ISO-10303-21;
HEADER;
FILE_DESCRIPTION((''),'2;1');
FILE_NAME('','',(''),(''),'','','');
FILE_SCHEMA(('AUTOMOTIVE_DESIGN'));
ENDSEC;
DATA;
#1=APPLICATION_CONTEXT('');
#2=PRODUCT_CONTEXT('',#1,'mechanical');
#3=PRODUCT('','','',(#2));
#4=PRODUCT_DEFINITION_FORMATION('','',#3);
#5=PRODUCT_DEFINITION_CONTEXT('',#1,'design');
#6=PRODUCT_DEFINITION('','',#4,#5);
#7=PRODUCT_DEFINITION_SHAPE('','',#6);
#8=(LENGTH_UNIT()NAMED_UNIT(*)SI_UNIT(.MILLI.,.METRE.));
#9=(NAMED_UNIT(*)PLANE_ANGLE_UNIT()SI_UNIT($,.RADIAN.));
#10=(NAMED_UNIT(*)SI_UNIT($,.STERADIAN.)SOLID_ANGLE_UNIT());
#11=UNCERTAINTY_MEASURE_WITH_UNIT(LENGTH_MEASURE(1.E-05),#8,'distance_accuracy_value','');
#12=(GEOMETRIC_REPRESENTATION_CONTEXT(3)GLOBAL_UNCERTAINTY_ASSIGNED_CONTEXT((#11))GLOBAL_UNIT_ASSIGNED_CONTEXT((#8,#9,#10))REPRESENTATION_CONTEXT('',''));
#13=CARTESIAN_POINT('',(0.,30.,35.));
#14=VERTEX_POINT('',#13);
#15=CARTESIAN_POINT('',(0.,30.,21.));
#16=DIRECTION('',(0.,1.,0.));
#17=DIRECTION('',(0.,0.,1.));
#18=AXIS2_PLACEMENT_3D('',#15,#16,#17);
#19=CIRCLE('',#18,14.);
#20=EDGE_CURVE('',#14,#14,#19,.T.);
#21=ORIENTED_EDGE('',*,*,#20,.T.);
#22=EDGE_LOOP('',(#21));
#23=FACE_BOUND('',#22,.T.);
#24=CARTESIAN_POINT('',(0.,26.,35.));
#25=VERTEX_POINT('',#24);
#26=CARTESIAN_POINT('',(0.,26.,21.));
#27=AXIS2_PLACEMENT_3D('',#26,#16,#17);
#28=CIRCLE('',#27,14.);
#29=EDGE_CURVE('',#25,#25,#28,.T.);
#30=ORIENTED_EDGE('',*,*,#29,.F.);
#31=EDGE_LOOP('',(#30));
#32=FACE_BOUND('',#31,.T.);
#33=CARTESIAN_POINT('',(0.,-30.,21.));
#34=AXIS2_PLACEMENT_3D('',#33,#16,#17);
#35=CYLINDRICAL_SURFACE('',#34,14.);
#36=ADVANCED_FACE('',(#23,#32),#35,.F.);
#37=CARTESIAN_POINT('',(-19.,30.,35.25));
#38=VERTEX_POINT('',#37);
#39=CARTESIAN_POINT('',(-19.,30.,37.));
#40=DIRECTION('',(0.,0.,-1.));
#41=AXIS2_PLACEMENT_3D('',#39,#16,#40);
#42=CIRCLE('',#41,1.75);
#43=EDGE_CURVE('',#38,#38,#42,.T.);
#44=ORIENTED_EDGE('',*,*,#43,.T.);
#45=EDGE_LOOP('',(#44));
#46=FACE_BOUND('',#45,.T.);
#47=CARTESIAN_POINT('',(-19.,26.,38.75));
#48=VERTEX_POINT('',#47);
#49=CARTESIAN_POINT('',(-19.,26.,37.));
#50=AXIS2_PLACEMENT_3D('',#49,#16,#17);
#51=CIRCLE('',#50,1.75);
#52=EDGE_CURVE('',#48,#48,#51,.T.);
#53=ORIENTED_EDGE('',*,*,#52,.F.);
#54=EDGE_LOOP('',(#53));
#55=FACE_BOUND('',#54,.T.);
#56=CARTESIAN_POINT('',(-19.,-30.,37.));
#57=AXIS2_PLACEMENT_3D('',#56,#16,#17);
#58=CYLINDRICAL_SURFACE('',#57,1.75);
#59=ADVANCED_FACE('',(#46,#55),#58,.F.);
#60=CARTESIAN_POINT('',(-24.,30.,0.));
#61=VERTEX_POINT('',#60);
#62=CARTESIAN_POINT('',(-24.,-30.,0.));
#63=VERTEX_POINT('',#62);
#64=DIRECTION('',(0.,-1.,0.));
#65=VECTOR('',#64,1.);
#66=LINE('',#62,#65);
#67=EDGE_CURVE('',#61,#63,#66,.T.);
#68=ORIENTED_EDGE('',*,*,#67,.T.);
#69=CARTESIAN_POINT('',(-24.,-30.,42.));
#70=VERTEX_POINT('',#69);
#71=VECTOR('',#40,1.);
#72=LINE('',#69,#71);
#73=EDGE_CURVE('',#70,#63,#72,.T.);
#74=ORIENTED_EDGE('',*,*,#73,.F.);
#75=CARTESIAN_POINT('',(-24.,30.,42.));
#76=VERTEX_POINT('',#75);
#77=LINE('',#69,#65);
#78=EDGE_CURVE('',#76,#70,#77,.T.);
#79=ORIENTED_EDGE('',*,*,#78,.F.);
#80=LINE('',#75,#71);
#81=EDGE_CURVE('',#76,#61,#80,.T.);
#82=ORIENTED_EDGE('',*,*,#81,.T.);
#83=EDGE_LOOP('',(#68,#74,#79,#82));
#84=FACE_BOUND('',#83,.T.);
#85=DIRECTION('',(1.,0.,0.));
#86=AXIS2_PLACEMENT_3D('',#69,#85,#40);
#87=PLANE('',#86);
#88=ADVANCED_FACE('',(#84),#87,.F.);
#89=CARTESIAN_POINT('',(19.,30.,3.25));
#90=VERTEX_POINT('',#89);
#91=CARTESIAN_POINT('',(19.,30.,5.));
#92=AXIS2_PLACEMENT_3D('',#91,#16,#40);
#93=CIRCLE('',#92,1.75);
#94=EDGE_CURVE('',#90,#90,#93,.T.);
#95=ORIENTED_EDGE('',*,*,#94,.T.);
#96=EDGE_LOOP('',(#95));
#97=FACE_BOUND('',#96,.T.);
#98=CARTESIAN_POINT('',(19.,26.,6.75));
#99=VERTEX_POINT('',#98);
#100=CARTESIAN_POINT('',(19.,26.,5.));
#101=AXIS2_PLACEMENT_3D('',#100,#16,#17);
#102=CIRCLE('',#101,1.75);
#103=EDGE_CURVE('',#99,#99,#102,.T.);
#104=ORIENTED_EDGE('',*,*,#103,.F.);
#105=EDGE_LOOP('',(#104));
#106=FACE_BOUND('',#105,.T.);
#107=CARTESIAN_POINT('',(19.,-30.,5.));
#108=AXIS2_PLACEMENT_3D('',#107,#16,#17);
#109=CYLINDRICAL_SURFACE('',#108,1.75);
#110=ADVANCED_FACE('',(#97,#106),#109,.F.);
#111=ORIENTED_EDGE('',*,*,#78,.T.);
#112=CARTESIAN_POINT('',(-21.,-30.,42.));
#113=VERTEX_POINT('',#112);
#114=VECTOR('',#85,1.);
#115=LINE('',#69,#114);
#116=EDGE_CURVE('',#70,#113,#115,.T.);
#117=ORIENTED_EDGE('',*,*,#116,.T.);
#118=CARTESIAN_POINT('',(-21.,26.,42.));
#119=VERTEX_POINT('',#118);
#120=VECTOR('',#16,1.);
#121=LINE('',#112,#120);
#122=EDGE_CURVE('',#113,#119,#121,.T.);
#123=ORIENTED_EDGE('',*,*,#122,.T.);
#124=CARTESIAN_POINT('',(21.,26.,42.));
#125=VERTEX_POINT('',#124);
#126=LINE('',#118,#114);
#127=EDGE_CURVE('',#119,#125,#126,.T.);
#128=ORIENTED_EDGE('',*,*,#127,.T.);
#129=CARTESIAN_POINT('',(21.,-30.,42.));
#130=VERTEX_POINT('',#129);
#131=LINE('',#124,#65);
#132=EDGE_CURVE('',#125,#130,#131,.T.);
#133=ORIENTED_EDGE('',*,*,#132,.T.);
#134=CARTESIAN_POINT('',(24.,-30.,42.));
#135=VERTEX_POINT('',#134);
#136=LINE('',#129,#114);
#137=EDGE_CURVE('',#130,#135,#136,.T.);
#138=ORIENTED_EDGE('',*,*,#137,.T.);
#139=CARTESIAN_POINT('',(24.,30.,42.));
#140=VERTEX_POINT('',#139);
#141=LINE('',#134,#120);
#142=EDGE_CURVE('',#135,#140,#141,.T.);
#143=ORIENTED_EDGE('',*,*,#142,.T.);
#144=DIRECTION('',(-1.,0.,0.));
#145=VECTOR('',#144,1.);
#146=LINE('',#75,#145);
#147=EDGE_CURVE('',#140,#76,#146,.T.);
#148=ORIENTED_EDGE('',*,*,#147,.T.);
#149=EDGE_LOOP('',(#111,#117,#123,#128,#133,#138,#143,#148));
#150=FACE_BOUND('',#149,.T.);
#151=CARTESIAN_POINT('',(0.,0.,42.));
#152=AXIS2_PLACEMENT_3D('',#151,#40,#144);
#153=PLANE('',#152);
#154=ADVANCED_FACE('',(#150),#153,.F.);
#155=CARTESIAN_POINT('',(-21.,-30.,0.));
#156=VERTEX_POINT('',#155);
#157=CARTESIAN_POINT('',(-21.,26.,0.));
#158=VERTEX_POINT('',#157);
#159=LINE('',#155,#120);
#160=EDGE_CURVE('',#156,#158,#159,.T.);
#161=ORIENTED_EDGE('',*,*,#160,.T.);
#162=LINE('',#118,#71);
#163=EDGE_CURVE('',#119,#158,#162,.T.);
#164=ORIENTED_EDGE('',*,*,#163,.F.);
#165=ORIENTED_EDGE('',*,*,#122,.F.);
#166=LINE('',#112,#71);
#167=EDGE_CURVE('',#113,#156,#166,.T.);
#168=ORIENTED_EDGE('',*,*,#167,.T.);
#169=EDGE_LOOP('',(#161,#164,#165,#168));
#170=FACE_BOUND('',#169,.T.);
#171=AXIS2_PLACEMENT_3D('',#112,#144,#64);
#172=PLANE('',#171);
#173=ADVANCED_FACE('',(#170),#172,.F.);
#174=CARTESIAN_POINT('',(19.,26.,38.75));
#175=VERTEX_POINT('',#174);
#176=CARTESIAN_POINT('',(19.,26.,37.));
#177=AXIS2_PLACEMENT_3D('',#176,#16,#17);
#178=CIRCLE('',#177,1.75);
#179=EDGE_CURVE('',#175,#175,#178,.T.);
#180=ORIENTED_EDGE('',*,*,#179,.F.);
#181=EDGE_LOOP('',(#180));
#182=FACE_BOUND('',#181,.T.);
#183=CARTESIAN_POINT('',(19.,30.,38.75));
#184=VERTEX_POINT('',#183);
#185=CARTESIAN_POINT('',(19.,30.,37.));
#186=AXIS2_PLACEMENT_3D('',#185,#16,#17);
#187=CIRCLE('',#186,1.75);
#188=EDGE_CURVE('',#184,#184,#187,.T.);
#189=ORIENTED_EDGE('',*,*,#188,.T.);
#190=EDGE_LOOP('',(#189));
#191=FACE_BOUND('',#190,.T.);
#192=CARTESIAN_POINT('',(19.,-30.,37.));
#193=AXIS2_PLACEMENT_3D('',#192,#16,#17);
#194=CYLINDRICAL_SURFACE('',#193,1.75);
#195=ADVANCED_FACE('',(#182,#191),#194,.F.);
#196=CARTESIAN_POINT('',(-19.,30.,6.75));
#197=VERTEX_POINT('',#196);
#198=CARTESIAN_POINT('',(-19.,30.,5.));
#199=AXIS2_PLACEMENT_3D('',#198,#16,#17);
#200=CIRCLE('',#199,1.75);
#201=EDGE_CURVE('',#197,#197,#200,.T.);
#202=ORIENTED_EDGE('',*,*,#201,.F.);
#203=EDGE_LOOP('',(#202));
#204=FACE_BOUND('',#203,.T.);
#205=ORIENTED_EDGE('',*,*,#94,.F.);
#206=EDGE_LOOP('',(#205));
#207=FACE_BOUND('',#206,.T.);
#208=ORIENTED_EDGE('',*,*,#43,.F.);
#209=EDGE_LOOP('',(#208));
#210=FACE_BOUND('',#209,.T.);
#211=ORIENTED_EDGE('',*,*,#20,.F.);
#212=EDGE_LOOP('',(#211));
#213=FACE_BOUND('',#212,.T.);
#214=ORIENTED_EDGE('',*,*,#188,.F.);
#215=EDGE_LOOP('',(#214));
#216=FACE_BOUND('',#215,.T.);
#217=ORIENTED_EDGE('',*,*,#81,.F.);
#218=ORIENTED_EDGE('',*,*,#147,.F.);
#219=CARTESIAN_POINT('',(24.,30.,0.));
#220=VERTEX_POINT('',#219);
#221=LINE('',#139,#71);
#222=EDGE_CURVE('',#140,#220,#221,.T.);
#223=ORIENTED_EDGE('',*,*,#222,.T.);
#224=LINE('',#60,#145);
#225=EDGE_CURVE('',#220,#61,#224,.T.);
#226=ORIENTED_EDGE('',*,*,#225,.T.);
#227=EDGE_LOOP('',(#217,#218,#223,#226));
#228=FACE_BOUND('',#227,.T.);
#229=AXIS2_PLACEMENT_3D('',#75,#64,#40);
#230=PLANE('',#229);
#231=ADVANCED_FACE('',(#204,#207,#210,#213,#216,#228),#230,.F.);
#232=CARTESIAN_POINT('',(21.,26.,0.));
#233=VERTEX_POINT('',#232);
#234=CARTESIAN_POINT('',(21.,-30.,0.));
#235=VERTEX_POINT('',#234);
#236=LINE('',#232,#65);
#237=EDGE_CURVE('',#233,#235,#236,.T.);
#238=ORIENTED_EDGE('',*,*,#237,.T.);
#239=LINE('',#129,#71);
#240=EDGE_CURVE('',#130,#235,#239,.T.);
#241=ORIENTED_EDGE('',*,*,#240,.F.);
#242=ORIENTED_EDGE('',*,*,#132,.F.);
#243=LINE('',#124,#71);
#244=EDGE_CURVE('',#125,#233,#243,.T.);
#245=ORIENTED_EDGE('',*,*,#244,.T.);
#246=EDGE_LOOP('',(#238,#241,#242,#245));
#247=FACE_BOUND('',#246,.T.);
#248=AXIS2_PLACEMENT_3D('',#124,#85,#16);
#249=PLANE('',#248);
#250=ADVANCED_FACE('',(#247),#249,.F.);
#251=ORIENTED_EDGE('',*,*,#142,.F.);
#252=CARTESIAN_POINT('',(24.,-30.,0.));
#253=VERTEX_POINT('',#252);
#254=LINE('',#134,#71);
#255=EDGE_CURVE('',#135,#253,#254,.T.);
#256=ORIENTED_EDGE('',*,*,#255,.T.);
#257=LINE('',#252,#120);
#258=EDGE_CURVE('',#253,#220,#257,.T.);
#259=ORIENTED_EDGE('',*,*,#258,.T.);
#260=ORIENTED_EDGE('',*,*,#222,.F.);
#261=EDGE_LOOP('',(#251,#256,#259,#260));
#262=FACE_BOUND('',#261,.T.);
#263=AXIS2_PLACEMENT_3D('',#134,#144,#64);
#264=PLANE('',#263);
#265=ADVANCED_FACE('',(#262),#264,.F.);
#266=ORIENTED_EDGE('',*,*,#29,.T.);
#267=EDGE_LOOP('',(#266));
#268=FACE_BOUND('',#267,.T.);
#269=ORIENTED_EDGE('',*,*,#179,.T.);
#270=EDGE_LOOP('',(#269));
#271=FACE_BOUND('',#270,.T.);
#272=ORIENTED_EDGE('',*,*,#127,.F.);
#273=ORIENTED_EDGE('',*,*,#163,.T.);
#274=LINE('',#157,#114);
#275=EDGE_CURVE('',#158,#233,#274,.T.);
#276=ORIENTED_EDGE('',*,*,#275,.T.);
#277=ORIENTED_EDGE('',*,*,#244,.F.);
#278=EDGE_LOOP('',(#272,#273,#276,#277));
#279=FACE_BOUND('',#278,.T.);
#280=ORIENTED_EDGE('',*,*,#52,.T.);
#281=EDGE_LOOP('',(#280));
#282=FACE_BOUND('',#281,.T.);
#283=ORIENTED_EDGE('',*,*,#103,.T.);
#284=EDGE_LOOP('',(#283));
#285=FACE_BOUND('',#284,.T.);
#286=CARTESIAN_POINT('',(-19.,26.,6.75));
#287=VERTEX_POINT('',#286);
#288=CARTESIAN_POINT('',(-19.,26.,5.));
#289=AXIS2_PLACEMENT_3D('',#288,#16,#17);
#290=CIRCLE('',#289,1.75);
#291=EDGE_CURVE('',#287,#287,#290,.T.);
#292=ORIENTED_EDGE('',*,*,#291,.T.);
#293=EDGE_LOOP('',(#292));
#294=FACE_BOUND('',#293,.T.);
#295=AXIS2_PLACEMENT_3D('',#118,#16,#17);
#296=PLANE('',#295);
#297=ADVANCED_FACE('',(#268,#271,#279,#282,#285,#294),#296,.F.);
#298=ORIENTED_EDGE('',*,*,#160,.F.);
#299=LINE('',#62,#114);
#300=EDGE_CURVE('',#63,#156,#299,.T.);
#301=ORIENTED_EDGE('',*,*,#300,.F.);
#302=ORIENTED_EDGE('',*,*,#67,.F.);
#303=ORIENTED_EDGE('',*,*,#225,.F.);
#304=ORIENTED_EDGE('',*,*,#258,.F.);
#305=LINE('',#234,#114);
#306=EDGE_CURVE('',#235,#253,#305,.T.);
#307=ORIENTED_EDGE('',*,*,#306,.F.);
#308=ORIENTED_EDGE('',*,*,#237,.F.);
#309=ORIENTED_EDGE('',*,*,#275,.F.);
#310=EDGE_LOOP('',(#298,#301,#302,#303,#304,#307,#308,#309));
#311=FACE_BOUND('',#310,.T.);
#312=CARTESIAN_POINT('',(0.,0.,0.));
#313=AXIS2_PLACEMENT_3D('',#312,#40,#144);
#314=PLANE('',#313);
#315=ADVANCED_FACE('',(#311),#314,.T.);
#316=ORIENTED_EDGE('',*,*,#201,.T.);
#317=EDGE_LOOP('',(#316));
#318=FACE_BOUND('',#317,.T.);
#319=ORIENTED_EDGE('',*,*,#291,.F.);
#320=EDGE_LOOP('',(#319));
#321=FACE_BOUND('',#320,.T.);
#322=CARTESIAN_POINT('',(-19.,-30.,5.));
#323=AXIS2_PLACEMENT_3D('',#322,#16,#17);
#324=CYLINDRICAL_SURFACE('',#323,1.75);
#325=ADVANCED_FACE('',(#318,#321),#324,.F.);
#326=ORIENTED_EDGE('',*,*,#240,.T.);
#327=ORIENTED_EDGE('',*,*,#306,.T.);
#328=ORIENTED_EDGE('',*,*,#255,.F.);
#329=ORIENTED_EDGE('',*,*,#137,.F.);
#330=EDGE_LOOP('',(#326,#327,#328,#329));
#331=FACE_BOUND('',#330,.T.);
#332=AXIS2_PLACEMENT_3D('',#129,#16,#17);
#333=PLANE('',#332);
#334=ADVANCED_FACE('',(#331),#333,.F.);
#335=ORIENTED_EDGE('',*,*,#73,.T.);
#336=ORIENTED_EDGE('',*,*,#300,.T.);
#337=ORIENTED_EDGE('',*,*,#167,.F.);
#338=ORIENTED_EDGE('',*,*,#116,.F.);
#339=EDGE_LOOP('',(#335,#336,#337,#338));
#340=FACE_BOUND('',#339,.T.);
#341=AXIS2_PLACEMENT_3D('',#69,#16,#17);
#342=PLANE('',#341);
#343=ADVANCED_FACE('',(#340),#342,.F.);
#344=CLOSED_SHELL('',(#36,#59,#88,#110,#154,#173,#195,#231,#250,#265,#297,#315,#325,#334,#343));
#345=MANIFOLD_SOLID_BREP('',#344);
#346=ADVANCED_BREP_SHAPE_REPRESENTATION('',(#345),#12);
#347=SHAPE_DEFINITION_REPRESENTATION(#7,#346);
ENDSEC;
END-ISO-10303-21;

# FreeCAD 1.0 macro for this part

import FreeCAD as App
import Part
import Sketcher
from FreeCAD import Vector

doc = App.newDocument("Part")
params = doc.addObject("Spreadsheet::Sheet", "Params")
for row, (alias, value) in enumerate([
    ("sketch1_width", "42 mm"),
    ("sketch1_width2", "3 mm"),
    ("sketch1_height", "56 mm"),
    ("sketch1_height2", "60 mm"),
    ("pad1_length", "42 mm"),
    ("sketch2_diameter", "28 mm"),
    ("sketch2_diameter2", "3.5 mm"),
], start=1):
    params.set(f"A{row}", alias)
    params.set(f"B{row}", "=" + value)
    params.setAlias(f"B{row}", alias)

body = doc.addObject("PartDesign::Body", "Body")

sketch1 = doc.addObject("Sketcher::SketchObject", "Sketch")
body.addObject(sketch1)
sketch1.AttachmentSupport = (doc.XY_Plane, [""])
sketch1.MapMode = "FlatFace"
sketch1.addGeometry([
    Part.LineSegment(Vector(-21, -30, 0), Vector(-21, 26, 0)),
    Part.LineSegment(Vector(-21, 26, 0), Vector(21, 26, 0)),
    Part.LineSegment(Vector(21, 26, 0), Vector(21, -30, 0)),
    Part.LineSegment(Vector(21, -30, 0), Vector(24, -30, 0)),
    Part.LineSegment(Vector(24, -30, 0), Vector(24, 30, 0)),
    Part.LineSegment(Vector(24, 30, 0), Vector(-24, 30, 0)),
    Part.LineSegment(Vector(-24, 30, 0), Vector(-24, -30, 0)),
    Part.LineSegment(Vector(-24, -30, 0), Vector(-21, -30, 0)),
], False)
sketch1.addConstraint([
    Sketcher.Constraint("Coincident", 0, 2, 1, 1),
    Sketcher.Constraint("Coincident", 1, 2, 2, 1),
    Sketcher.Constraint("Coincident", 2, 2, 3, 1),
    Sketcher.Constraint("Coincident", 3, 2, 4, 1),
    Sketcher.Constraint("Coincident", 4, 2, 5, 1),
    Sketcher.Constraint("Coincident", 5, 2, 6, 1),
    Sketcher.Constraint("Coincident", 6, 2, 7, 1),
    Sketcher.Constraint("Coincident", 7, 2, 0, 1),
    Sketcher.Constraint("Vertical", 0),
    Sketcher.Constraint("Horizontal", 1),
    Sketcher.Constraint("Vertical", 2),
    Sketcher.Constraint("Horizontal", 3),
    Sketcher.Constraint("Vertical", 4),
    Sketcher.Constraint("Horizontal", 5),
    Sketcher.Constraint("Vertical", 6),
    Sketcher.Constraint("Horizontal", 7),
    Sketcher.Constraint("Symmetric", 3, 2, 5, 2, -1, 1),
    Sketcher.Constraint("Symmetric", 2, 2, 7, 2, -2),
    Sketcher.Constraint("DistanceX", 1, 1, 1, 2, 42.0),
    Sketcher.Constraint("DistanceX", 3, 1, 3, 2, 3.0),
    Sketcher.Constraint("DistanceY", 0, 1, 0, 2, 56.0),
    Sketcher.Constraint("DistanceY", 4, 1, 4, 2, 60.0),
])
sketch1.setExpression("Constraints[18]", "Params.sketch1_width")
sketch1.setExpression("Constraints[19]", "Params.sketch1_width2")
sketch1.setExpression("Constraints[20]", "Params.sketch1_height")
sketch1.setExpression("Constraints[21]", "Params.sketch1_height2")
pad1 = doc.addObject("PartDesign::Pad", "Pad")
body.addObject(pad1)
pad1.Profile = sketch1
pad1.setExpression("Length", "Params.pad1_length")

sketch2 = doc.addObject("Sketcher::SketchObject", "Sketch001")
body.addObject(sketch2)
sketch2.AttachmentSupport = (doc.XZ_Plane, [""])
sketch2.MapMode = "FlatFace"
sketch2.AttachmentOffset = App.Placement(Vector(0, 0, -30), App.Rotation())
sketch2.addGeometry([
    Part.Circle(Vector(19, 37, 0), Vector(0, 0, 1), 1.75),
    Part.Circle(Vector(19, 5, 0), Vector(0, 0, 1), 1.75),
    Part.Circle(Vector(-19, 37, 0), Vector(0, 0, 1), 1.75),
    Part.Circle(Vector(-19, 5, 0), Vector(0, 0, 1), 1.75),
    Part.Circle(Vector(0, 21, 0), Vector(0, 0, 1), 14),
], False)
sketch2.addConstraint([
    Sketcher.Constraint("Equal", 0, 1),
    Sketcher.Constraint("Equal", 1, 2),
    Sketcher.Constraint("Equal", 2, 3),
    Sketcher.Constraint("Symmetric", 0, 3, 2, 3, -2),
    Sketcher.Constraint("Symmetric", 1, 3, 3, 3, -2),
    Sketcher.Constraint("PointOnObject", 4, 3, -2),
    Sketcher.Constraint("Vertical", 0, 3, 1, 3),
    Sketcher.Constraint("Diameter", 4, 28.0),
    Sketcher.Constraint("Diameter", 0, 3.5),
    Sketcher.Constraint("DistanceX", -1, 1, 0, 3, 19.0),
    Sketcher.Constraint("DistanceY", -1, 1, 0, 3, 37.0),
    Sketcher.Constraint("DistanceY", -1, 1, 1, 3, 5.0),
    Sketcher.Constraint("DistanceY", -1, 1, 4, 3, 21.0),
])
sketch2.setExpression("Constraints[7]", "Params.sketch2_diameter")
sketch2.setExpression("Constraints[8]", "Params.sketch2_diameter2")
pocket1 = doc.addObject("PartDesign::Pocket", "Pocket")
body.addObject(pocket1)
pocket1.Profile = sketch2
pocket1.Type = "ThroughAll"
pocket1.Reversed = True

doc.recompute()
